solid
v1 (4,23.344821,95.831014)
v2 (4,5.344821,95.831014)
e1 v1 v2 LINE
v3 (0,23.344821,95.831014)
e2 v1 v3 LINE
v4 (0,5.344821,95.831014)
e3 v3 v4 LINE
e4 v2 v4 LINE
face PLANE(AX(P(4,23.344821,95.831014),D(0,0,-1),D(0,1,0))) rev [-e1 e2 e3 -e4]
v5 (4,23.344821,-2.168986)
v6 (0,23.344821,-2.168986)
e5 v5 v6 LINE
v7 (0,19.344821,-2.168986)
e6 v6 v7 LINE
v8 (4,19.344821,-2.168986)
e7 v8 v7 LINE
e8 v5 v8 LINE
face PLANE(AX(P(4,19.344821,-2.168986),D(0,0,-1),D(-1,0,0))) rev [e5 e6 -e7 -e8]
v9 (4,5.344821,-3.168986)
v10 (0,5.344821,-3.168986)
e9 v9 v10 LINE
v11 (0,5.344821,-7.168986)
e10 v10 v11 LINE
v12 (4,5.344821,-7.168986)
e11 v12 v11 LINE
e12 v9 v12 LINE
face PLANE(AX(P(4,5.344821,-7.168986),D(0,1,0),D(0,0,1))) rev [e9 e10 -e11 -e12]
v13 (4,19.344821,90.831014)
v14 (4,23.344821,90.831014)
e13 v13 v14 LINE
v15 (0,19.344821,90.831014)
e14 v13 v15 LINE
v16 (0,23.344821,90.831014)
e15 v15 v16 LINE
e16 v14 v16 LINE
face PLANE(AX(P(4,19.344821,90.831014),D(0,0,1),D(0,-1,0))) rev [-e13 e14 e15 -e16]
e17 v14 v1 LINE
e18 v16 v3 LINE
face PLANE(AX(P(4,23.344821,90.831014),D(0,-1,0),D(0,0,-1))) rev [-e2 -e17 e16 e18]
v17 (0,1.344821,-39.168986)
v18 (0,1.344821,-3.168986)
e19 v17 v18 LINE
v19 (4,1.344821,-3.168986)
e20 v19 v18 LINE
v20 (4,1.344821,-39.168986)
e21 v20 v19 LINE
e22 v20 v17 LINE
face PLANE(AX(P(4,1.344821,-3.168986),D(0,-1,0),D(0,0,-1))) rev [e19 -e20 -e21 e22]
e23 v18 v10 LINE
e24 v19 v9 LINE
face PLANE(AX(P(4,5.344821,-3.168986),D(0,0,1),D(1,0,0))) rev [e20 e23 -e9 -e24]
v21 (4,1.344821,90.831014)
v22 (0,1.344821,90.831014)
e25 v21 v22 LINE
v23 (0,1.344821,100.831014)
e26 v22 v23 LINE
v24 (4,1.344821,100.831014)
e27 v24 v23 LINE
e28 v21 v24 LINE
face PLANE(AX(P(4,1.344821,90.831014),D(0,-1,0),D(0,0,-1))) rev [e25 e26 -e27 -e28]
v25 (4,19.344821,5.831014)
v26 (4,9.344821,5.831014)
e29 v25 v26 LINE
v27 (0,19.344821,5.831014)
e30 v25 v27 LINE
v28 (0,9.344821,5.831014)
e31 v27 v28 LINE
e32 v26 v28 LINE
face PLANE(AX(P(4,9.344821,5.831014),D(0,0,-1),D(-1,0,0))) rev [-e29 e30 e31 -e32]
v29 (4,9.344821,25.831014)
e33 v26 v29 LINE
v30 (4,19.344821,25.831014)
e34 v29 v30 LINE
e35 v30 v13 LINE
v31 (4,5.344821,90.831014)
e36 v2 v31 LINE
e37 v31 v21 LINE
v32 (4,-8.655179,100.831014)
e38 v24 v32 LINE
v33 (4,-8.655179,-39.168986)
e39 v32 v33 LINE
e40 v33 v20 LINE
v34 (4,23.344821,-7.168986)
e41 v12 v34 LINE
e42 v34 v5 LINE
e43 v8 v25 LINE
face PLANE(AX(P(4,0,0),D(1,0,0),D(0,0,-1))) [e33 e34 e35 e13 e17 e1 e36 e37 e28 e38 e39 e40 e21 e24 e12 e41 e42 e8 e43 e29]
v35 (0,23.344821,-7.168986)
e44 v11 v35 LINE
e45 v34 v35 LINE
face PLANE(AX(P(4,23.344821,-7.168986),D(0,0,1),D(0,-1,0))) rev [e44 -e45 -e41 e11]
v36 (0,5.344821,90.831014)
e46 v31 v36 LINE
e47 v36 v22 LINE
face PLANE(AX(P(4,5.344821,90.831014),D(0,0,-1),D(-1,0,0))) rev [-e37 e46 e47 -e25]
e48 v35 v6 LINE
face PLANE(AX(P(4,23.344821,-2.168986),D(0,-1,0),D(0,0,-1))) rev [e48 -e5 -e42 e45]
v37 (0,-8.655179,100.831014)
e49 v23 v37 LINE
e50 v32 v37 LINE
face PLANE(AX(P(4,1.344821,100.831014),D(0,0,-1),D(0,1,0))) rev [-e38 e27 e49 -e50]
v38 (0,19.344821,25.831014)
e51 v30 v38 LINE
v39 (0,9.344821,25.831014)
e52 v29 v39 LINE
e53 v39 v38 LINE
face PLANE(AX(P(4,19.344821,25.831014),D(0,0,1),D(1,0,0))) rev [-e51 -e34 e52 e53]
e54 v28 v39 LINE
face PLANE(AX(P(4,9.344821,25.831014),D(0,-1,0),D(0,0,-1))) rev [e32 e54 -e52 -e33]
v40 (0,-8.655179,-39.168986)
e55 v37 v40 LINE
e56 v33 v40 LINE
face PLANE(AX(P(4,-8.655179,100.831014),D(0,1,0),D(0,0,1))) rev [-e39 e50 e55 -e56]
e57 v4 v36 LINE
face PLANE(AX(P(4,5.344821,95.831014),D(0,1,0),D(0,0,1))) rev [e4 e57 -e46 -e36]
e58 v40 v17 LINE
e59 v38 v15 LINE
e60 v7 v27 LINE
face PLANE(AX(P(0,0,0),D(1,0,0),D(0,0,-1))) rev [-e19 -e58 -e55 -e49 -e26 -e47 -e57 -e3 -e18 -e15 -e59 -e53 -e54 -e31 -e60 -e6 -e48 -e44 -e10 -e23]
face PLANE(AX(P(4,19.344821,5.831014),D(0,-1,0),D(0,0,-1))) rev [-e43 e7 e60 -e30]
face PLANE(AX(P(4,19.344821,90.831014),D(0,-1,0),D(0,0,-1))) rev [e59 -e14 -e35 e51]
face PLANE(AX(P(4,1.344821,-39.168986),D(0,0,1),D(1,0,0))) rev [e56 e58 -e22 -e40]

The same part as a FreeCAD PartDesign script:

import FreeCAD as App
import Part
import Sketcher
from FreeCAD import Vector
Q = App.Units.Quantity


def add_polygon(sketch, points):
    """Adds a closed chain of lines whose ends are joined by coincident constraints."""
    first, n = sketch.GeometryCount, len(points)
    for a, b in zip(points, points[1:] + points[:1]):
        sketch.addGeometry(Part.LineSegment(App.Vector(*a, 0), App.Vector(*b, 0)), False)
    for i in range(n):
        sketch.addConstraint(Sketcher.Constraint("Coincident", first + i, 2, first + (i + 1) % n, 1))

doc = App.newDocument("Part")
body = doc.addObject("PartDesign::Body", "Body")

sketch1 = body.newObject("Sketcher::SketchObject", "Sketch")
sketch1.AttachmentSupport = (doc.getObject("YZ_Plane"), [""])
sketch1.MapMode = "FlatFace"
add_polygon(sketch1, [(23.3, 95.8), (5.3, 95.8), (5.3, 90.8), (1.3, 90.8), (1.3, 100.8), (-8.7, 100.8), (-8.7, -39.2), (1.3, -39.2), (1.3, -3.2), (5.3, -3.2), (5.3, -7.2), (23.3, -7.2), (23.3, -2.2), (19.3, -2.2), (19.3, 5.8), (9.3, 5.8), (9.3, 25.8), (19.3, 25.8), (19.3, 90.8), (23.3, 90.8)])
sketch1.addConstraint(Sketcher.Constraint("Horizontal", 0))
sketch1.addConstraint(Sketcher.Constraint("Vertical", 1))
sketch1.addConstraint(Sketcher.Constraint("Horizontal", 2))
sketch1.addConstraint(Sketcher.Constraint("Vertical", 3))
sketch1.addConstraint(Sketcher.Constraint("Horizontal", 4))
sketch1.addConstraint(Sketcher.Constraint("Vertical", 5))
sketch1.addConstraint(Sketcher.Constraint("Horizontal", 6))
sketch1.addConstraint(Sketcher.Constraint("Vertical", 7))
sketch1.addConstraint(Sketcher.Constraint("Horizontal", 8))
sketch1.addConstraint(Sketcher.Constraint("Vertical", 9))
sketch1.addConstraint(Sketcher.Constraint("Horizontal", 10))
sketch1.addConstraint(Sketcher.Constraint("Vertical", 11))
sketch1.addConstraint(Sketcher.Constraint("Horizontal", 12))
sketch1.addConstraint(Sketcher.Constraint("Vertical", 13))
sketch1.addConstraint(Sketcher.Constraint("Horizontal", 14))
sketch1.addConstraint(Sketcher.Constraint("Vertical", 15))
sketch1.addConstraint(Sketcher.Constraint("Horizontal", 16))
sketch1.addConstraint(Sketcher.Constraint("Vertical", 17))
sketch1.addConstraint(Sketcher.Constraint("Horizontal", 18))
sketch1.addConstraint(Sketcher.Constraint("Vertical", 19))
sketch1.addConstraint(Sketcher.Constraint("Horizontal", 2, 2, 17, 2))
sketch1.addConstraint(Sketcher.Constraint("Vertical", 3, 2, 6, 2))
sketch1.addConstraint(Sketcher.Constraint("Vertical", 1, 2, 8, 2))
sketch1.addConstraint(Sketcher.Constraint("Vertical", 13, 2, 16, 2))
sketch1.addConstraint(Sketcher.Constraint("Vertical", 11, 2, 18, 2))
sketch1.addConstraint(Sketcher.Constraint("Equal", 8, 12))
sketch1.addConstraint(Sketcher.Constraint("Equal", 6, 14))
sketch1.addConstraint(Sketcher.Constraint("Equal", 16, 3))
sketch1.addConstraint(Sketcher.Constraint("Equal", 18, 9))
sketch1.addConstraint(Sketcher.Constraint("Equal", 1, 11))
sketch1.addConstraint(Sketcher.Constraint("DistanceX", 0, 2, 0, 1, Q("18 mm")))
sketch1.addConstraint(Sketcher.Constraint("DistanceX", 2, 2, 2, 1, Q("4 mm")))
sketch1.addConstraint(Sketcher.Constraint("DistanceX", 4, 2, 4, 1, Q("10 mm")))
sketch1.addConstraint(Sketcher.Constraint("DistanceY", 1, 2, 1, 1, Q("5 mm")))
sketch1.addConstraint(Sketcher.Constraint("DistanceY", 5, 2, 5, 1, Q("140 mm")))
sketch1.addConstraint(Sketcher.Constraint("DistanceY", 7, 1, 7, 2, Q("36 mm")))
sketch1.addConstraint(Sketcher.Constraint("DistanceY", 13, 1, 13, 2, Q("8 mm")))
sketch1.addConstraint(Sketcher.Constraint("DistanceY", 15, 1, 15, 2, Q("20 mm")))
sketch1.addConstraint(Sketcher.Constraint("DistanceX", -1, 1, 0, 2, Q("5.344821 mm")))
sketch1.addConstraint(Sketcher.Constraint("DistanceY", -1, 1, 0, 2, Q("95.831014 mm")))
pad1 = body.newObject("PartDesign::Pad", "Pad")
pad1.Profile = sketch1
pad1.Length = 4

doc.recompute()
